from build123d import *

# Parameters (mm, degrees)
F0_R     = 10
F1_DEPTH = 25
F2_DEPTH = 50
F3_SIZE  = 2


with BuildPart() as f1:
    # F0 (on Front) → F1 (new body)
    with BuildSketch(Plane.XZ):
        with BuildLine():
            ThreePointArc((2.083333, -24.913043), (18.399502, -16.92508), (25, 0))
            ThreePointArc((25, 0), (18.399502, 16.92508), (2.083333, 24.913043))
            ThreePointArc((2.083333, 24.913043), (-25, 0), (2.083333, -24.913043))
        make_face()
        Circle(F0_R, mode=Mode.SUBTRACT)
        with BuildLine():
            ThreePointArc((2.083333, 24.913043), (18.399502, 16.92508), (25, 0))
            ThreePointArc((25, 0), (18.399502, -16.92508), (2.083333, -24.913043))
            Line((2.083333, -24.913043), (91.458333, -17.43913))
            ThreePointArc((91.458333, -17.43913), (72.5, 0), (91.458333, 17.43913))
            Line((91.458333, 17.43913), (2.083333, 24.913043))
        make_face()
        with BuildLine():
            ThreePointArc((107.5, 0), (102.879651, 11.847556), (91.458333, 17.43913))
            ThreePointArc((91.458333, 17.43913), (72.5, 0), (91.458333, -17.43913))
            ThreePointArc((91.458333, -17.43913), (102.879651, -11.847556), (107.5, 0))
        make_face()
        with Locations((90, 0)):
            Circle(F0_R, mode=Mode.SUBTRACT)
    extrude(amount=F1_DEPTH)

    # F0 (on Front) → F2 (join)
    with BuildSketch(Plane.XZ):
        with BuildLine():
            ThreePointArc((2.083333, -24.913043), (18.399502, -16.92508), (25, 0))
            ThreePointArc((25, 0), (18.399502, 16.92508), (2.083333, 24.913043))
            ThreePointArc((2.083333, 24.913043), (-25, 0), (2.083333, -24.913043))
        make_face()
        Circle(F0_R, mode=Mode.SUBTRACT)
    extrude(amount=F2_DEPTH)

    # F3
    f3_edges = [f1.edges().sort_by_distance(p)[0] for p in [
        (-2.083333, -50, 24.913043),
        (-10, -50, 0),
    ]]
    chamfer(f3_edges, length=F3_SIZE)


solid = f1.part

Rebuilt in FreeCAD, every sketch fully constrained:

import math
import FreeCAD as App
import Part
import Sketcher

V = App.Vector


def edges_at(feature, points):
    """Names of the edges that pass closest to the given points."""
    edges = feature.Shape.Edges
    near = lambda p: min(range(len(edges)), key=lambda i: edges[i].distToShape(Part.Vertex(*p))[0])
    return sorted({f"Edge{near(p) + 1}" for p in points})

doc = App.newDocument("Part")
body = doc.addObject("PartDesign::Body", "Body")

sketch1 = body.newObject("Sketcher::SketchObject", "Sketch")
sketch1.AttachmentSupport = (doc.getObject("XZ_Plane"), [""])
sketch1.MapMode = "FlatFace"
sketch1.addGeometry(Part.ArcOfCircle(Part.Circle(V(0, 0, 0), V(0, 0, 1), 25), math.radians(85), math.radians(275)), False)
sketch1.addGeometry(Part.LineSegment(V(2, -25, 0), V(91, -17, 0)), False)
sketch1.addGeometry(Part.ArcOfCircle(Part.Circle(V(90, 0, 0), V(0, 0, 1), 18), math.radians(-85), math.radians(0)), False)
sketch1.addGeometry(Part.ArcOfCircle(Part.Circle(V(90, 0, 0), V(0, 0, 1), 18), math.radians(0), math.radians(85)), False)
sketch1.addGeometry(Part.LineSegment(V(91, 17, 0), V(2, 25, 0)), False)
sketch1.addGeometry(Part.Circle(V(0, 0, 0), V(0, 0, 1), 10), False)
sketch1.addGeometry(Part.Circle(V(90, 0, 0), V(0, 0, 1), 10), False)
sketch1.addConstraint(Sketcher.Constraint("Tangent", 0, 2, 1, 1))
sketch1.addConstraint(Sketcher.Constraint("Tangent", 1, 2, 2, 1))
sketch1.addConstraint(Sketcher.Constraint("Tangent", 2, 2, 3, 1))
sketch1.addConstraint(Sketcher.Constraint("Tangent", 3, 2, 4, 1))
sketch1.addConstraint(Sketcher.Constraint("Tangent", 4, 2, 0, 1))
sketch1.addConstraint(Sketcher.Constraint("Coincident", 0, 3, -1, 1))
sketch1.addConstraint(Sketcher.Constraint("Coincident", 5, 3, -1, 1))
sketch1.addConstraint(Sketcher.Constraint("Coincident", 6, 3, 2, 3))
sketch1.addConstraint(Sketcher.Constraint("Equal", 2, 3))
sketch1.addConstraint(Sketcher.Constraint("Equal", 5, 6))
sketch1.addConstraint(Sketcher.Constraint("PointOnObject", 2, 3, -1))
sketch1.addConstraint(Sketcher.Constraint("PointOnObject", 2, 2, -1))
sketch1.addConstraint(Sketcher.Constraint("Diameter", 5, 20.0))
sketch1.addConstraint(Sketcher.Constraint("Radius", 0, 25.0))
sketch1.addConstraint(Sketcher.Constraint("Radius", 2, 17.5))
sketch1.addConstraint(Sketcher.Constraint("DistanceX", -1, 1, 2, 3, 90.0))
pad1 = body.newObject("PartDesign::Pad", "Pad")
pad1.Profile = sketch1
pad1.Length = 25

sketch2 = body.newObject("Sketcher::SketchObject", "Sketch001")
sketch2.AttachmentSupport = (doc.getObject("XZ_Plane"), [""])
sketch2.MapMode = "FlatFace"
sketch2.addGeometry(Part.ArcOfCircle(Part.Circle(V(0, 0, 0), V(0, 0, 1), 25), math.radians(-85), math.radians(0)), False)
sketch2.addGeometry(Part.ArcOfCircle(Part.Circle(V(0, 0, 0), V(0, 0, 1), 25), math.radians(0), math.radians(85)), False)
sketch2.addGeometry(Part.ArcOfCircle(Part.Circle(V(0, 0, 0), V(0, 0, 1), 25), math.radians(85), math.radians(275)), False)
sketch2.addGeometry(Part.Circle(V(0, 0, 0), V(0, 0, 1), 10), False)
sketch2.addConstraint(Sketcher.Constraint("Tangent", 0, 2, 1, 1))
sketch2.addConstraint(Sketcher.Constraint("Tangent", 1, 2, 2, 1))
sketch2.addConstraint(Sketcher.Constraint("Tangent", 2, 2, 0, 1))
sketch2.addConstraint(Sketcher.Constraint("Coincident", 0, 3, -1, 1))
sketch2.addConstraint(Sketcher.Constraint("Coincident", 3, 3, -1, 1))
sketch2.addConstraint(Sketcher.Constraint("PointOnObject", 0, 2, -1))
sketch2.addConstraint(Sketcher.Constraint("Vertical", 1, 2, 2, 2))
sketch2.addConstraint(Sketcher.Constraint("Diameter", 3, 20.0))
sketch2.addConstraint(Sketcher.Constraint("Radius", 0, 24.999999))
sketch2.addConstraint(Sketcher.Constraint("DistanceX", -1, 1, 1, 2, 2.083333))
pad2 = body.newObject("PartDesign::Pad", "Pad001")
pad2.Profile = sketch2
pad2.Length = 50
doc.recompute()

chamfer = body.newObject("PartDesign::Chamfer", "Chamfer")
chamfer.Base = (pad2, edges_at(pad2, [(-25, -50, 0), (-10, -50, 0)]))
chamfer.Size = 2

doc.recompute()
